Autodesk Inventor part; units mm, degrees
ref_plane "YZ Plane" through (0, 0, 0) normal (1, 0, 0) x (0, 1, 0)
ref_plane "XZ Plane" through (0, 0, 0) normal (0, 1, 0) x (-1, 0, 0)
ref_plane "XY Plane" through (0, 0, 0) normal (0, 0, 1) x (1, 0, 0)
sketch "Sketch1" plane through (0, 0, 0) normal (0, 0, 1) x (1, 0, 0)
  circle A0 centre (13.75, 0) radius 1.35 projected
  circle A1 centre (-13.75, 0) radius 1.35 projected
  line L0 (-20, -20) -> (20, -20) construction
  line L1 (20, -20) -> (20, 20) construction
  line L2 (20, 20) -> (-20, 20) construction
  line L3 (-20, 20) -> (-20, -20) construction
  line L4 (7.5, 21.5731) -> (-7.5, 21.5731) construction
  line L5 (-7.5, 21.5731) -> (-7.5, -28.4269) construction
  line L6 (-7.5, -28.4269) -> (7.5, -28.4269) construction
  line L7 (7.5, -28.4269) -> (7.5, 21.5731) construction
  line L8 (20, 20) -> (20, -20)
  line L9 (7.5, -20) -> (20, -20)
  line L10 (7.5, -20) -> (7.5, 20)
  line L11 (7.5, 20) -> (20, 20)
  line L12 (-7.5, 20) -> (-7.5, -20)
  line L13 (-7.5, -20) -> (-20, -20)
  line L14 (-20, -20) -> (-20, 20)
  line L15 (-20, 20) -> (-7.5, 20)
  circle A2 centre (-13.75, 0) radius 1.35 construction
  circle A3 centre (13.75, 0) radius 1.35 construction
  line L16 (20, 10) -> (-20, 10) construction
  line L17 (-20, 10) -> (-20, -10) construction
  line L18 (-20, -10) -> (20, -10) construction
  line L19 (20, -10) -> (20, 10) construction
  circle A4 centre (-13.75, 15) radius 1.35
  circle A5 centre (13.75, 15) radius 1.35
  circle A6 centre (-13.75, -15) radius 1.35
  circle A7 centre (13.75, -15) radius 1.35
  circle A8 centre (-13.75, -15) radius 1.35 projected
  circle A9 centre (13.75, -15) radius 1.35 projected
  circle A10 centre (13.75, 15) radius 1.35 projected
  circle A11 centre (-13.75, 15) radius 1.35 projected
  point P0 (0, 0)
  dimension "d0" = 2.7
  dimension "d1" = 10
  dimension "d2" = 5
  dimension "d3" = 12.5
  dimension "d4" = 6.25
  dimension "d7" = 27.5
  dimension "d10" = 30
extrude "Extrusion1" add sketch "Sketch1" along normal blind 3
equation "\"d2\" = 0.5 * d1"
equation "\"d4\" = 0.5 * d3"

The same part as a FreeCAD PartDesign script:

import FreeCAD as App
import Part
import Sketcher
from FreeCAD import Vector


def add_polygon(sketch, points):
    """Adds a closed chain of lines whose ends are joined by coincident constraints."""
    first, n = sketch.GeometryCount, len(points)
    for a, b in zip(points, points[1:] + points[:1]):
        sketch.addGeometry(Part.LineSegment(App.Vector(*a, 0), App.Vector(*b, 0)), False)
    for i in range(n):
        sketch.addConstraint(Sketcher.Constraint("Coincident", first + i, 2, first + (i + 1) % n, 1))

doc = App.newDocument("Part")
body = doc.addObject("PartDesign::Body", "Body")
body.AllowCompound = True

sketch1 = body.newObject("Sketcher::SketchObject", "Sketch")
sketch1.AttachmentSupport = (doc.getObject("XY_Plane"), [""])
sketch1.MapMode = "FlatFace"
add_polygon(sketch1, [(20, -20), (20, 20), (7.5, 20), (7.5, -20)])
sketch1.addGeometry(Part.Circle(Vector(13.75, -15, 0), Vector(0, 0, 1), 1.35), False)
sketch1.addGeometry(Part.Circle(Vector(13.75, 0, 0), Vector(0, 0, 1), 1.35), False)
sketch1.addGeometry(Part.Circle(Vector(13.75, 15, 0), Vector(0, 0, 1), 1.35), False)
add_polygon(sketch1, [(-7.5, -20), (-7.5, 20), (-20, 20), (-20, -20)])
sketch1.addGeometry(Part.Circle(Vector(-13.75, -15, 0), Vector(0, 0, 1), 1.35), False)
sketch1.addGeometry(Part.Circle(Vector(-13.75, 0, 0), Vector(0, 0, 1), 1.35), False)
sketch1.addGeometry(Part.Circle(Vector(-13.75, 15, 0), Vector(0, 0, 1), 1.35), False)
sketch1.addConstraint(Sketcher.Constraint("Vertical", 0))
sketch1.addConstraint(Sketcher.Constraint("Horizontal", 1))
sketch1.addConstraint(Sketcher.Constraint("Vertical", 2))
sketch1.addConstraint(Sketcher.Constraint("Horizontal", 3))
sketch1.addConstraint(Sketcher.Constraint("Vertical", 7))
sketch1.addConstraint(Sketcher.Constraint("Horizontal", 8))
sketch1.addConstraint(Sketcher.Constraint("Vertical", 9))
sketch1.addConstraint(Sketcher.Constraint("Horizontal", 10))
sketch1.addConstraint(Sketcher.Constraint("Equal", 4, 5))
sketch1.addConstraint(Sketcher.Constraint("Equal", 5, 6))
sketch1.addConstraint(Sketcher.Constraint("Equal", 6, 11))
sketch1.addConstraint(Sketcher.Constraint("Equal", 11, 12))
sketch1.addConstraint(Sketcher.Constraint("Equal", 12, 13))
sketch1.addConstraint(Sketcher.Constraint("Symmetric", 6, 3, 11, 3, -1, 1))
sketch1.addConstraint(Sketcher.Constraint("Symmetric", 5, 3, 12, 3, -1, 1))
sketch1.addConstraint(Sketcher.Constraint("Symmetric", 4, 3, 13, 3, -1, 1))
sketch1.addConstraint(Sketcher.Constraint("Symmetric", 2, 2, 7, 2, -1, 1))
sketch1.addConstraint(Sketcher.Constraint("Symmetric", 0, 2, 9, 2, -1, 1))
sketch1.addConstraint(Sketcher.Constraint("Symmetric", 4, 3, 11, 3, -2))
sketch1.addConstraint(Sketcher.Constraint("PointOnObject", 5, 3, -1))
sketch1.addConstraint(Sketcher.Constraint("Horizontal", 1, 2, 7, 2))
sketch1.addConstraint(Sketcher.Constraint("Vertical", 4, 3, 5, 3))
sketch1.addConstraint(Sketcher.Constraint("Diameter", 4, 2.7))
sketch1.addConstraint(Sketcher.Constraint("DistanceX", 1, 2, 1, 1, 12.5))
sketch1.addConstraint(Sketcher.Constraint("DistanceY", 4, 3, 6, 3, 30.0))
sketch1.addConstraint(Sketcher.Constraint("DistanceY", 6, 3, 0, 2, 5.0))
sketch1.addConstraint(Sketcher.Constraint("DistanceX", 11, 3, 4, 3, 27.5))
sketch1.addConstraint(Sketcher.Constraint("DistanceX", 7, 2, 0, 2, 27.5))
pad1 = body.newObject("PartDesign::Pad", "Pad")
pad1.Profile = sketch1
pad1.Length = 3

doc.recompute()
